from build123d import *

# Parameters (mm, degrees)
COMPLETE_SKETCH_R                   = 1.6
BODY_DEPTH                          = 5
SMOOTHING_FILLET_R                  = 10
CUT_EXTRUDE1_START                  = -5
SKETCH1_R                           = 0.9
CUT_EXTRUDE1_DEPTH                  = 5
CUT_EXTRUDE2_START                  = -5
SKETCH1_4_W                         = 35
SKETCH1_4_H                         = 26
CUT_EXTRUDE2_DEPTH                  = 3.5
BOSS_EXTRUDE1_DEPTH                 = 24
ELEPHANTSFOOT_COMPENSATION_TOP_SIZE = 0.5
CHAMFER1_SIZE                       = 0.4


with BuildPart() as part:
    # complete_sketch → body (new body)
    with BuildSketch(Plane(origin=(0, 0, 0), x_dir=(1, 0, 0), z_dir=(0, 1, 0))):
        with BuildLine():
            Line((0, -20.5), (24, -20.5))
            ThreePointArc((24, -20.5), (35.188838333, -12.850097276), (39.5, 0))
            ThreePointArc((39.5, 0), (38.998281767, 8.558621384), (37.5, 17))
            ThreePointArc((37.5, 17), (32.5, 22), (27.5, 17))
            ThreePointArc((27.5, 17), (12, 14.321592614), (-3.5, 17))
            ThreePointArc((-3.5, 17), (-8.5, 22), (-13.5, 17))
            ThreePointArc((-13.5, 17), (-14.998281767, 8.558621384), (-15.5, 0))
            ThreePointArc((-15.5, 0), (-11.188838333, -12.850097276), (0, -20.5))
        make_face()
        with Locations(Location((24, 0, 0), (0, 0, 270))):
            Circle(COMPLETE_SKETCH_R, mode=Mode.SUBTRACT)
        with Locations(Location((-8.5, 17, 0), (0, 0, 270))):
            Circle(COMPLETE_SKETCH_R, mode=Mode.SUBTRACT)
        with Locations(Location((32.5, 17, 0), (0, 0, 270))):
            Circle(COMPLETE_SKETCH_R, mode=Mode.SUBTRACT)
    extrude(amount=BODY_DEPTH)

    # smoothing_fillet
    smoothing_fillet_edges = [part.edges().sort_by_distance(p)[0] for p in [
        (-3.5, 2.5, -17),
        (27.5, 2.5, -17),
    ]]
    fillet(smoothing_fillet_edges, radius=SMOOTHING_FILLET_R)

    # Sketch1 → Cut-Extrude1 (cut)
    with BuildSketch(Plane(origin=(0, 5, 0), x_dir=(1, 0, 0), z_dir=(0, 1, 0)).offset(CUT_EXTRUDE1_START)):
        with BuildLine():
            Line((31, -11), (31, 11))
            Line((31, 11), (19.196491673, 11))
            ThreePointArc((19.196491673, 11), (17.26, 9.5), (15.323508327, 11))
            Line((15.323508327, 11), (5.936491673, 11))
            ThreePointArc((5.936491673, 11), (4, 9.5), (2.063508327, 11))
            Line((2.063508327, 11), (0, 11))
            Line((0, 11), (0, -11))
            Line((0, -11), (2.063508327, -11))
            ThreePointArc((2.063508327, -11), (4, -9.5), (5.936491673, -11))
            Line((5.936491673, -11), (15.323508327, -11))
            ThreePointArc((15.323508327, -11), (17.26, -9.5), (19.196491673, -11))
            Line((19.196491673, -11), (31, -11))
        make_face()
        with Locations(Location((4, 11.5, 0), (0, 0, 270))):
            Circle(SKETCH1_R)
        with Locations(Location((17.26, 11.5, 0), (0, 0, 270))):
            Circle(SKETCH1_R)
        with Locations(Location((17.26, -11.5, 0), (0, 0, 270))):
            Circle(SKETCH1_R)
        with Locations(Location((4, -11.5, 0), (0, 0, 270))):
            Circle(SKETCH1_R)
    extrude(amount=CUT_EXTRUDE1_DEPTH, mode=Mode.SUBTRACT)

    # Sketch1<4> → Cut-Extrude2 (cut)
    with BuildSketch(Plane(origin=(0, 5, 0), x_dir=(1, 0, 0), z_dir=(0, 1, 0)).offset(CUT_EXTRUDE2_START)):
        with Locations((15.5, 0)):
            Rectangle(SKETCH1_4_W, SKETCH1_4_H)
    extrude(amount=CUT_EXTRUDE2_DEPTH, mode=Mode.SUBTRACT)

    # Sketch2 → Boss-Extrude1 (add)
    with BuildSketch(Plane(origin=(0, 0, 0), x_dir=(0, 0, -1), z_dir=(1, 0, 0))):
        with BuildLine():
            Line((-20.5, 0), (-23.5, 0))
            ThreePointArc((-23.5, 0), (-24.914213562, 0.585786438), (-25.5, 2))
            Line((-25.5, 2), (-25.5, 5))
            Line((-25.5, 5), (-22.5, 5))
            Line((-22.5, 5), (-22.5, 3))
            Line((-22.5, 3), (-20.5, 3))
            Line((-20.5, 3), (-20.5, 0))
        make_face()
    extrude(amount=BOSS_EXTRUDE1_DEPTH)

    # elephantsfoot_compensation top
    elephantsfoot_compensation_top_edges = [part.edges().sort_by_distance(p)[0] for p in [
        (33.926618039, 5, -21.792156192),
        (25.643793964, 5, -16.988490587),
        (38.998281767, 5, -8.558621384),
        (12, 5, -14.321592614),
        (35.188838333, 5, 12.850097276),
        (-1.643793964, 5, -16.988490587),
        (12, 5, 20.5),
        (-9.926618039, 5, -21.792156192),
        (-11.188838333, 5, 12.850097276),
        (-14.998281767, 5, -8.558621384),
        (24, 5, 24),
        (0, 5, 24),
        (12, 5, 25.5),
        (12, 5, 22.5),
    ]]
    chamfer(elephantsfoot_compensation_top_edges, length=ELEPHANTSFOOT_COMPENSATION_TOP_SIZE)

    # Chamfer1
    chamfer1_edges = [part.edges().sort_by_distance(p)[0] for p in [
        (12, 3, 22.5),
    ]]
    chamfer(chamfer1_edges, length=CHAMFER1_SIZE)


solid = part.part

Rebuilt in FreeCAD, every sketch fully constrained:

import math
import FreeCAD as App
import Part
import Sketcher

V = App.Vector
Q = App.Units.Quantity


def edges_at(feature, points):
    """Names of the edges that pass closest to the given points."""
    edges = feature.Shape.Edges
    near = lambda p: min(range(len(edges)), key=lambda i: edges[i].distToShape(Part.Vertex(*p))[0])
    return sorted({f"Edge{near(p) + 1}" for p in points})

doc = App.newDocument("Part")
params = doc.addObject("Spreadsheet::Sheet", "Params")
for row, (alias, value) in enumerate([
    ("sketch1_radius", "5 mm"),
    ("sketch1_diameter", "3.2 mm"),
    ("sketch1_width", "24 mm"),
    ("sketch1_radius2", "73.25 mm"),
    ("pad1_length", "5 mm"),
    ("fillet_radius", "10 mm"),
    ("sketch2_radius", "2 mm"),
    ("sketch2_diameter", "1.8 mm"),
    ("sketch2_height", "22 mm"),
    ("pocket1_length", "5 mm"),
    ("sketch3_width", "35 mm"),
    ("sketch3_height", "26 mm"),
    ("pocket2_length", "3.5 mm"),
    ("sketch4_radius", "2 mm"),
    ("sketch4_width", "3 mm"),
    ("pad2_length", "24 mm"),
    ("chamfer_size", "0.5 mm"),
    ("chamfer2_size", "0.4 mm"),
], start=1):
    params.set(f"A{row}", alias)
    params.set(f"B{row}", "=" + value)
    params.setAlias(f"B{row}", alias)

body = doc.addObject("PartDesign::Body", "Body")

sketch1 = doc.addObject("Sketcher::SketchObject", "Sketch")
body.addObject(sketch1)
sketch1.AttachmentSupport = (doc.XZ_Plane, [""])
sketch1.MapMode = "FlatFace"
sketch1.addGeometry([
    Part.LineSegment(V(0, 20.5, 0), V(24, 20.5, 0)),
    Part.ArcOfCircle(Part.Circle(V(18.2, 0, 0), V(0, 0, 1), 21.3), math.radians(0), math.radians(74)),
    Part.ArcOfCircle(Part.Circle(V(-33.7, 0, 0), V(0, 0, 1), 73.2), math.radians(-13.42), math.radians(0)),
    Part.ArcOfCircle(Part.Circle(V(32.5, -17, 0), V(0, 0, 1), 5), math.radians(180), math.radians(360)),
    Part.ArcOfCircle(Part.Circle(V(12, -60.5, 0), V(0, 0, 1), 46.2), math.radians(70), math.radians(110)),
    Part.ArcOfCircle(Part.Circle(V(-8.5, -17, 0), V(0, 0, 1), 5), math.radians(180), math.radians(360)),
    Part.ArcOfCircle(Part.Circle(V(57.7, 0, 0), V(0, 0, 1), 73.2), math.radians(180), math.radians(193.42)),
    Part.ArcOfCircle(Part.Circle(V(5.8, 0, 0), V(0, 0, 1), 21.3), math.radians(106), math.radians(180)),
    Part.Circle(V(24, 0, 0), V(0, 0, 1), 1.6),
    Part.Circle(V(-8.5, -17, 0), V(0, 0, 1), 1.6),
    Part.Circle(V(32.5, -17, 0), V(0, 0, 1), 1.6),
], False)
sketch1.addConstraint([
    Sketcher.Constraint("Coincident", 0, 2, 1, 2),
    Sketcher.Constraint("Tangent", 1, 1, 2, 2),
    Sketcher.Constraint("Coincident", 2, 1, 3, 2),
    Sketcher.Constraint("Coincident", 3, 1, 4, 1),
    Sketcher.Constraint("Coincident", 4, 2, 5, 2),
    Sketcher.Constraint("Coincident", 5, 1, 6, 2),
    Sketcher.Constraint("Tangent", 6, 1, 7, 2),
    Sketcher.Constraint("Coincident", 7, 1, 0, 1),
    Sketcher.Constraint("Horizontal", 0),
    Sketcher.Constraint("Coincident", 9, 3, 5, 3),
    Sketcher.Constraint("Coincident", 10, 3, 3, 3),
    Sketcher.Constraint("Equal", 3, 5),
    Sketcher.Constraint("Equal", 2, 6),
    Sketcher.Constraint("Equal", 1, 7),
    Sketcher.Constraint("Equal", 8, 9),
    Sketcher.Constraint("Equal", 9, 10),
    Sketcher.Constraint("PointOnObject", 1, 3, -1),
    Sketcher.Constraint("PointOnObject", 2, 3, -1),
    Sketcher.Constraint("PointOnObject", 6, 3, -1),
    Sketcher.Constraint("PointOnObject", 7, 3, -1),
    Sketcher.Constraint("PointOnObject", 8, 3, -1),
    Sketcher.Constraint("PointOnObject", 7, 1, -2),
    Sketcher.Constraint("Horizontal", 3, 3, 5, 3),
    Sketcher.Constraint("Horizontal", 10, 3, 2, 1),
    Sketcher.Constraint("Horizontal", 2, 1, 3, 1),
    Sketcher.Constraint("Horizontal", 3, 1, 4, 2),
    Sketcher.Constraint("Horizontal", 4, 2, 5, 1),
    Sketcher.Constraint("Vertical", 8, 3, 0, 2),
    Sketcher.Constraint("Radius", 3, Q("5 mm")),
    Sketcher.Constraint("Diameter", 8, Q("3.2 mm")),
    Sketcher.Constraint("DistanceX", 0, 1, 0, 2, Q("24 mm")),
    Sketcher.Constraint("Radius", 2, Q("73.25 mm")),
    Sketcher.Constraint("DistanceY", 3, 3, -1, 1, Q("17 mm")),
    Sketcher.Constraint("DistanceX", 5, 3, 3, 3, Q("41 mm")),
    Sketcher.Constraint("DistanceY", -1, 1, 0, 2, Q("20.5 mm")),
    Sketcher.Constraint("Radius", 4, Q("46.188617 mm")),
])
sketch1.setExpression("Constraints[28]", "Params.sketch1_radius")
sketch1.setExpression("Constraints[29]", "Params.sketch1_diameter")
sketch1.setExpression("Constraints[30]", "Params.sketch1_width")
sketch1.setExpression("Constraints[31]", "Params.sketch1_radius2")
pad1 = doc.addObject("PartDesign::Pad", "Pad")
body.addObject(pad1)
pad1.Profile = sketch1
pad1.setExpression("Length", "Params.pad1_length")
pad1.Reversed = True
doc.recompute()

fillet = doc.addObject("PartDesign::Fillet", "Fillet")
body.addObject(fillet)
fillet.Base = (pad1, edges_at(pad1, [(-3.5, 2.5, -17), (27.5, 2.5, -17)]))
fillet.setExpression("Radius", "Params.fillet_radius")

sketch2 = doc.addObject("Sketcher::SketchObject", "Sketch001")
body.addObject(sketch2)
sketch2.AttachmentSupport = (doc.XZ_Plane, [""])
sketch2.MapMode = "FlatFace"
sketch2.addGeometry([
    Part.LineSegment(V(31, 11, 0), V(31, -11, 0)),
    Part.LineSegment(V(31, -11, 0), V(19.2, -11, 0)),
    Part.ArcOfCircle(Part.Circle(V(17.3, -11.5, 0), V(0, 0, 1), 2), math.radians(14), math.radians(166)),
    Part.LineSegment(V(15.3, -11, 0), V(5.9, -11, 0)),
    Part.ArcOfCircle(Part.Circle(V(4, -11.5, 0), V(0, 0, 1), 2), math.radians(14), math.radians(166)),
    Part.LineSegment(V(2.1, -11, 0), V(0, -11, 0)),
    Part.LineSegment(V(0, -11, 0), V(0, 11, 0)),
    Part.LineSegment(V(0, 11, 0), V(2.1, 11, 0)),
    Part.ArcOfCircle(Part.Circle(V(4, 11.5, 0), V(0, 0, 1), 2), math.radians(-166), math.radians(-14)),
    Part.LineSegment(V(5.9, 11, 0), V(15.3, 11, 0)),
    Part.ArcOfCircle(Part.Circle(V(17.3, 11.5, 0), V(0, 0, 1), 2), math.radians(-166), math.radians(-14)),
    Part.LineSegment(V(19.2, 11, 0), V(31, 11, 0)),
    Part.Circle(V(4, -11.5, 0), V(0, 0, 1), 0.9),
    Part.Circle(V(17.3, -11.5, 0), V(0, 0, 1), 0.9),
    Part.Circle(V(17.3, 11.5, 0), V(0, 0, 1), 0.9),
    Part.Circle(V(4, 11.5, 0), V(0, 0, 1), 0.9),
], False)
sketch2.addConstraint([
    Sketcher.Constraint("Coincident", 0, 2, 1, 1),
    Sketcher.Constraint("Coincident", 1, 2, 2, 1),
    Sketcher.Constraint("Coincident", 2, 2, 3, 1),
    Sketcher.Constraint("Coincident", 3, 2, 4, 1),
    Sketcher.Constraint("Coincident", 4, 2, 5, 1),
    Sketcher.Constraint("Coincident", 5, 2, 6, 1),
    Sketcher.Constraint("Coincident", 6, 2, 7, 1),
    Sketcher.Constraint("Coincident", 7, 2, 8, 1),
    Sketcher.Constraint("Coincident", 8, 2, 9, 1),
    Sketcher.Constraint("Coincident", 9, 2, 10, 1),
    Sketcher.Constraint("Coincident", 10, 2, 11, 1),
    Sketcher.Constraint("Coincident", 11, 2, 0, 1),
    Sketcher.Constraint("Vertical", 0),
    Sketcher.Constraint("Horizontal", 1),
    Sketcher.Constraint("Horizontal", 3),
    Sketcher.Constraint("Horizontal", 5),
    Sketcher.Constraint("Vertical", 6),
    Sketcher.Constraint("Horizontal", 7),
    Sketcher.Constraint("Horizontal", 9),
    Sketcher.Constraint("Horizontal", 11),
    Sketcher.Constraint("Coincident", 12, 3, 4, 3),
    Sketcher.Constraint("Coincident", 13, 3, 2, 3),
    Sketcher.Constraint("Coincident", 14, 3, 10, 3),
    Sketcher.Constraint("Coincident", 15, 3, 8, 3),
    Sketcher.Constraint("Equal", 2, 4),
    Sketcher.Constraint("Equal", 4, 8),
    Sketcher.Constraint("Equal", 8, 10),
    Sketcher.Constraint("Equal", 12, 13),
    Sketcher.Constraint("Equal", 13, 14),
    Sketcher.Constraint("Equal", 14, 15),
    Sketcher.Constraint("Symmetric", 5, 2, 6, 2, -1, 1),
    Sketcher.Constraint("Symmetric", 4, 3, 8, 3, -1),
    Sketcher.Constraint("Symmetric", 2, 3, 10, 3, -1),
    Sketcher.Constraint("Horizontal", 2, 3, 4, 3),
    Sketcher.Constraint("Horizontal", 1, 2, 2, 2),
    Sketcher.Constraint("Horizontal", 3, 2, 4, 2),
    Sketcher.Constraint("Horizontal", 7, 2, 8, 2),
    Sketcher.Constraint("Horizontal", 9, 2, 10, 2),
    Sketcher.Constraint("Radius", 2, Q("2 mm")),
    Sketcher.Constraint("Diameter", 12, Q("1.8 mm")),
    Sketcher.Constraint("DistanceY", 0, 2, 0, 1, Q("22 mm")),
    Sketcher.Constraint("DistanceX", -1, 1, 4, 3, Q("4 mm")),
    Sketcher.Constraint("DistanceX", -1, 1, 0, 2, Q("31 mm")),
    Sketcher.Constraint("DistanceY", 4, 3, 8, 3, Q("23 mm")),
    Sketcher.Constraint("DistanceX", -1, 1, 2, 3, Q("17.26 mm")),
])
sketch2.setExpression("Constraints[38]", "Params.sketch2_radius")
sketch2.setExpression("Constraints[39]", "Params.sketch2_diameter")
sketch2.setExpression("Constraints[40]", "Params.sketch2_height")
pocket1 = doc.addObject("PartDesign::Pocket", "Pocket")
body.addObject(pocket1)
pocket1.Profile = sketch2
pocket1.setExpression("Length", "Params.pocket1_length")

sketch3 = doc.addObject("Sketcher::SketchObject", "Sketch002")
body.addObject(sketch3)
sketch3.AttachmentSupport = (doc.XZ_Plane, [""])
sketch3.MapMode = "FlatFace"
sketch3.addGeometry([
    Part.LineSegment(V(-2, -13, 0), V(-2, 13, 0)),
    Part.LineSegment(V(-2, 13, 0), V(33, 13, 0)),
    Part.LineSegment(V(33, 13, 0), V(33, -13, 0)),
    Part.LineSegment(V(33, -13, 0), V(-2, -13, 0)),
], False)
sketch3.addConstraint([
    Sketcher.Constraint("Coincident", 0, 2, 1, 1),
    Sketcher.Constraint("Coincident", 1, 2, 2, 1),
    Sketcher.Constraint("Coincident", 2, 2, 3, 1),
    Sketcher.Constraint("Coincident", 3, 2, 0, 1),
    Sketcher.Constraint("Vertical", 0),
    Sketcher.Constraint("Horizontal", 1),
    Sketcher.Constraint("Vertical", 2),
    Sketcher.Constraint("Horizontal", 3),
    Sketcher.Constraint("DistanceX", 1, 1, 1, 2, Q("35 mm")),
    Sketcher.Constraint("DistanceY", 0, 1, 0, 2, Q("26 mm")),
    Sketcher.Constraint("DistanceX", 0, 2, -1, 1, Q("2 mm")),
    Sketcher.Constraint("DistanceY", -1, 1, 0, 2, Q("13 mm")),
])
sketch3.setExpression("Constraints[8]", "Params.sketch3_width")
sketch3.setExpression("Constraints[9]", "Params.sketch3_height")
pocket2 = doc.addObject("PartDesign::Pocket", "Pocket001")
body.addObject(pocket2)
pocket2.Profile = sketch3
pocket2.setExpression("Length", "Params.pocket2_length")

sketch4 = doc.addObject("Sketcher::SketchObject", "Sketch003")
body.addObject(sketch4)
sketch4.AttachmentSupport = (doc.YZ_Plane, [""])
sketch4.MapMode = "FlatFace"
sketch4.addGeometry([
    Part.LineSegment(V(0, 23.5, 0), V(0, 20.5, 0)),
    Part.LineSegment(V(0, 20.5, 0), V(3, 20.5, 0)),
    Part.LineSegment(V(3, 20.5, 0), V(3, 22.5, 0)),
    Part.LineSegment(V(3, 22.5, 0), V(5, 22.5, 0)),
    Part.LineSegment(V(5, 22.5, 0), V(5, 25.5, 0)),
    Part.LineSegment(V(5, 25.5, 0), V(2, 25.5, 0)),
    Part.ArcOfCircle(Part.Circle(V(2, 23.5, 0), V(0, 0, 1), 2), math.radians(90), math.radians(180)),
], False)
sketch4.addConstraint([
    Sketcher.Constraint("Coincident", 0, 2, 1, 1),
    Sketcher.Constraint("Coincident", 1, 2, 2, 1),
    Sketcher.Constraint("Coincident", 2, 2, 3, 1),
    Sketcher.Constraint("Coincident", 3, 2, 4, 1),
    Sketcher.Constraint("Coincident", 4, 2, 5, 1),
    Sketcher.Constraint("Tangent", 5, 2, 6, 1),
    Sketcher.Constraint("Tangent", 6, 2, 0, 1),
    Sketcher.Constraint("Vertical", 0),
    Sketcher.Constraint("Horizontal", 1),
    Sketcher.Constraint("Vertical", 2),
    Sketcher.Constraint("Horizontal", 3),
    Sketcher.Constraint("Vertical", 4),
    Sketcher.Constraint("Horizontal", 5),
    Sketcher.Constraint("PointOnObject", 0, 2, -2),
    Sketcher.Constraint("Equal", 1, 5),
    Sketcher.Constraint("Equal", 5, 0),
    Sketcher.Constraint("Equal", 3, 2),
    Sketcher.Constraint("Radius", 6, Q("2 mm")),
    Sketcher.Constraint("DistanceX", 1, 1, 1, 2, Q("3 mm")),
    Sketcher.Constraint("DistanceY", -1, 1, 6, 3, Q("23.5 mm")),
])
sketch4.setExpression("Constraints[17]", "Params.sketch4_radius")
sketch4.setExpression("Constraints[18]", "Params.sketch4_width")
pad2 = doc.addObject("PartDesign::Pad", "Pad001")
body.addObject(pad2)
pad2.Profile = sketch4
pad2.setExpression("Length", "Params.pad2_length")
doc.recompute()

chamfer = doc.addObject("PartDesign::Chamfer", "Chamfer")
body.addObject(chamfer)
chamfer.Base = (pad2, edges_at(pad2, [
    (33.927, 5, -21.792),
    (25.644, 5, -16.988),
    (38.998, 5, -8.559),
    (12, 5, -14.322),
    (35.189, 5, 12.85),
    (-1.644, 5, -16.988),
    (12, 5, 20.5),
    (-9.927, 5, -21.792),
    (-11.189, 5, 12.85),
    (-14.998, 5, -8.559),
    (24, 5, 24),
    (0, 5, 24),
    (12, 5, 25.5),
    (12, 5, 22.5),
]))
chamfer.setExpression("Size", "Params.chamfer_size")
doc.recompute()

chamfer2 = doc.addObject("PartDesign::Chamfer", "Chamfer001")
body.addObject(chamfer2)
chamfer2.Base = (chamfer, edges_at(chamfer, [(12, 3, 22.5)]))
chamfer2.setExpression("Size", "Params.chamfer2_size")

doc.recompute()
